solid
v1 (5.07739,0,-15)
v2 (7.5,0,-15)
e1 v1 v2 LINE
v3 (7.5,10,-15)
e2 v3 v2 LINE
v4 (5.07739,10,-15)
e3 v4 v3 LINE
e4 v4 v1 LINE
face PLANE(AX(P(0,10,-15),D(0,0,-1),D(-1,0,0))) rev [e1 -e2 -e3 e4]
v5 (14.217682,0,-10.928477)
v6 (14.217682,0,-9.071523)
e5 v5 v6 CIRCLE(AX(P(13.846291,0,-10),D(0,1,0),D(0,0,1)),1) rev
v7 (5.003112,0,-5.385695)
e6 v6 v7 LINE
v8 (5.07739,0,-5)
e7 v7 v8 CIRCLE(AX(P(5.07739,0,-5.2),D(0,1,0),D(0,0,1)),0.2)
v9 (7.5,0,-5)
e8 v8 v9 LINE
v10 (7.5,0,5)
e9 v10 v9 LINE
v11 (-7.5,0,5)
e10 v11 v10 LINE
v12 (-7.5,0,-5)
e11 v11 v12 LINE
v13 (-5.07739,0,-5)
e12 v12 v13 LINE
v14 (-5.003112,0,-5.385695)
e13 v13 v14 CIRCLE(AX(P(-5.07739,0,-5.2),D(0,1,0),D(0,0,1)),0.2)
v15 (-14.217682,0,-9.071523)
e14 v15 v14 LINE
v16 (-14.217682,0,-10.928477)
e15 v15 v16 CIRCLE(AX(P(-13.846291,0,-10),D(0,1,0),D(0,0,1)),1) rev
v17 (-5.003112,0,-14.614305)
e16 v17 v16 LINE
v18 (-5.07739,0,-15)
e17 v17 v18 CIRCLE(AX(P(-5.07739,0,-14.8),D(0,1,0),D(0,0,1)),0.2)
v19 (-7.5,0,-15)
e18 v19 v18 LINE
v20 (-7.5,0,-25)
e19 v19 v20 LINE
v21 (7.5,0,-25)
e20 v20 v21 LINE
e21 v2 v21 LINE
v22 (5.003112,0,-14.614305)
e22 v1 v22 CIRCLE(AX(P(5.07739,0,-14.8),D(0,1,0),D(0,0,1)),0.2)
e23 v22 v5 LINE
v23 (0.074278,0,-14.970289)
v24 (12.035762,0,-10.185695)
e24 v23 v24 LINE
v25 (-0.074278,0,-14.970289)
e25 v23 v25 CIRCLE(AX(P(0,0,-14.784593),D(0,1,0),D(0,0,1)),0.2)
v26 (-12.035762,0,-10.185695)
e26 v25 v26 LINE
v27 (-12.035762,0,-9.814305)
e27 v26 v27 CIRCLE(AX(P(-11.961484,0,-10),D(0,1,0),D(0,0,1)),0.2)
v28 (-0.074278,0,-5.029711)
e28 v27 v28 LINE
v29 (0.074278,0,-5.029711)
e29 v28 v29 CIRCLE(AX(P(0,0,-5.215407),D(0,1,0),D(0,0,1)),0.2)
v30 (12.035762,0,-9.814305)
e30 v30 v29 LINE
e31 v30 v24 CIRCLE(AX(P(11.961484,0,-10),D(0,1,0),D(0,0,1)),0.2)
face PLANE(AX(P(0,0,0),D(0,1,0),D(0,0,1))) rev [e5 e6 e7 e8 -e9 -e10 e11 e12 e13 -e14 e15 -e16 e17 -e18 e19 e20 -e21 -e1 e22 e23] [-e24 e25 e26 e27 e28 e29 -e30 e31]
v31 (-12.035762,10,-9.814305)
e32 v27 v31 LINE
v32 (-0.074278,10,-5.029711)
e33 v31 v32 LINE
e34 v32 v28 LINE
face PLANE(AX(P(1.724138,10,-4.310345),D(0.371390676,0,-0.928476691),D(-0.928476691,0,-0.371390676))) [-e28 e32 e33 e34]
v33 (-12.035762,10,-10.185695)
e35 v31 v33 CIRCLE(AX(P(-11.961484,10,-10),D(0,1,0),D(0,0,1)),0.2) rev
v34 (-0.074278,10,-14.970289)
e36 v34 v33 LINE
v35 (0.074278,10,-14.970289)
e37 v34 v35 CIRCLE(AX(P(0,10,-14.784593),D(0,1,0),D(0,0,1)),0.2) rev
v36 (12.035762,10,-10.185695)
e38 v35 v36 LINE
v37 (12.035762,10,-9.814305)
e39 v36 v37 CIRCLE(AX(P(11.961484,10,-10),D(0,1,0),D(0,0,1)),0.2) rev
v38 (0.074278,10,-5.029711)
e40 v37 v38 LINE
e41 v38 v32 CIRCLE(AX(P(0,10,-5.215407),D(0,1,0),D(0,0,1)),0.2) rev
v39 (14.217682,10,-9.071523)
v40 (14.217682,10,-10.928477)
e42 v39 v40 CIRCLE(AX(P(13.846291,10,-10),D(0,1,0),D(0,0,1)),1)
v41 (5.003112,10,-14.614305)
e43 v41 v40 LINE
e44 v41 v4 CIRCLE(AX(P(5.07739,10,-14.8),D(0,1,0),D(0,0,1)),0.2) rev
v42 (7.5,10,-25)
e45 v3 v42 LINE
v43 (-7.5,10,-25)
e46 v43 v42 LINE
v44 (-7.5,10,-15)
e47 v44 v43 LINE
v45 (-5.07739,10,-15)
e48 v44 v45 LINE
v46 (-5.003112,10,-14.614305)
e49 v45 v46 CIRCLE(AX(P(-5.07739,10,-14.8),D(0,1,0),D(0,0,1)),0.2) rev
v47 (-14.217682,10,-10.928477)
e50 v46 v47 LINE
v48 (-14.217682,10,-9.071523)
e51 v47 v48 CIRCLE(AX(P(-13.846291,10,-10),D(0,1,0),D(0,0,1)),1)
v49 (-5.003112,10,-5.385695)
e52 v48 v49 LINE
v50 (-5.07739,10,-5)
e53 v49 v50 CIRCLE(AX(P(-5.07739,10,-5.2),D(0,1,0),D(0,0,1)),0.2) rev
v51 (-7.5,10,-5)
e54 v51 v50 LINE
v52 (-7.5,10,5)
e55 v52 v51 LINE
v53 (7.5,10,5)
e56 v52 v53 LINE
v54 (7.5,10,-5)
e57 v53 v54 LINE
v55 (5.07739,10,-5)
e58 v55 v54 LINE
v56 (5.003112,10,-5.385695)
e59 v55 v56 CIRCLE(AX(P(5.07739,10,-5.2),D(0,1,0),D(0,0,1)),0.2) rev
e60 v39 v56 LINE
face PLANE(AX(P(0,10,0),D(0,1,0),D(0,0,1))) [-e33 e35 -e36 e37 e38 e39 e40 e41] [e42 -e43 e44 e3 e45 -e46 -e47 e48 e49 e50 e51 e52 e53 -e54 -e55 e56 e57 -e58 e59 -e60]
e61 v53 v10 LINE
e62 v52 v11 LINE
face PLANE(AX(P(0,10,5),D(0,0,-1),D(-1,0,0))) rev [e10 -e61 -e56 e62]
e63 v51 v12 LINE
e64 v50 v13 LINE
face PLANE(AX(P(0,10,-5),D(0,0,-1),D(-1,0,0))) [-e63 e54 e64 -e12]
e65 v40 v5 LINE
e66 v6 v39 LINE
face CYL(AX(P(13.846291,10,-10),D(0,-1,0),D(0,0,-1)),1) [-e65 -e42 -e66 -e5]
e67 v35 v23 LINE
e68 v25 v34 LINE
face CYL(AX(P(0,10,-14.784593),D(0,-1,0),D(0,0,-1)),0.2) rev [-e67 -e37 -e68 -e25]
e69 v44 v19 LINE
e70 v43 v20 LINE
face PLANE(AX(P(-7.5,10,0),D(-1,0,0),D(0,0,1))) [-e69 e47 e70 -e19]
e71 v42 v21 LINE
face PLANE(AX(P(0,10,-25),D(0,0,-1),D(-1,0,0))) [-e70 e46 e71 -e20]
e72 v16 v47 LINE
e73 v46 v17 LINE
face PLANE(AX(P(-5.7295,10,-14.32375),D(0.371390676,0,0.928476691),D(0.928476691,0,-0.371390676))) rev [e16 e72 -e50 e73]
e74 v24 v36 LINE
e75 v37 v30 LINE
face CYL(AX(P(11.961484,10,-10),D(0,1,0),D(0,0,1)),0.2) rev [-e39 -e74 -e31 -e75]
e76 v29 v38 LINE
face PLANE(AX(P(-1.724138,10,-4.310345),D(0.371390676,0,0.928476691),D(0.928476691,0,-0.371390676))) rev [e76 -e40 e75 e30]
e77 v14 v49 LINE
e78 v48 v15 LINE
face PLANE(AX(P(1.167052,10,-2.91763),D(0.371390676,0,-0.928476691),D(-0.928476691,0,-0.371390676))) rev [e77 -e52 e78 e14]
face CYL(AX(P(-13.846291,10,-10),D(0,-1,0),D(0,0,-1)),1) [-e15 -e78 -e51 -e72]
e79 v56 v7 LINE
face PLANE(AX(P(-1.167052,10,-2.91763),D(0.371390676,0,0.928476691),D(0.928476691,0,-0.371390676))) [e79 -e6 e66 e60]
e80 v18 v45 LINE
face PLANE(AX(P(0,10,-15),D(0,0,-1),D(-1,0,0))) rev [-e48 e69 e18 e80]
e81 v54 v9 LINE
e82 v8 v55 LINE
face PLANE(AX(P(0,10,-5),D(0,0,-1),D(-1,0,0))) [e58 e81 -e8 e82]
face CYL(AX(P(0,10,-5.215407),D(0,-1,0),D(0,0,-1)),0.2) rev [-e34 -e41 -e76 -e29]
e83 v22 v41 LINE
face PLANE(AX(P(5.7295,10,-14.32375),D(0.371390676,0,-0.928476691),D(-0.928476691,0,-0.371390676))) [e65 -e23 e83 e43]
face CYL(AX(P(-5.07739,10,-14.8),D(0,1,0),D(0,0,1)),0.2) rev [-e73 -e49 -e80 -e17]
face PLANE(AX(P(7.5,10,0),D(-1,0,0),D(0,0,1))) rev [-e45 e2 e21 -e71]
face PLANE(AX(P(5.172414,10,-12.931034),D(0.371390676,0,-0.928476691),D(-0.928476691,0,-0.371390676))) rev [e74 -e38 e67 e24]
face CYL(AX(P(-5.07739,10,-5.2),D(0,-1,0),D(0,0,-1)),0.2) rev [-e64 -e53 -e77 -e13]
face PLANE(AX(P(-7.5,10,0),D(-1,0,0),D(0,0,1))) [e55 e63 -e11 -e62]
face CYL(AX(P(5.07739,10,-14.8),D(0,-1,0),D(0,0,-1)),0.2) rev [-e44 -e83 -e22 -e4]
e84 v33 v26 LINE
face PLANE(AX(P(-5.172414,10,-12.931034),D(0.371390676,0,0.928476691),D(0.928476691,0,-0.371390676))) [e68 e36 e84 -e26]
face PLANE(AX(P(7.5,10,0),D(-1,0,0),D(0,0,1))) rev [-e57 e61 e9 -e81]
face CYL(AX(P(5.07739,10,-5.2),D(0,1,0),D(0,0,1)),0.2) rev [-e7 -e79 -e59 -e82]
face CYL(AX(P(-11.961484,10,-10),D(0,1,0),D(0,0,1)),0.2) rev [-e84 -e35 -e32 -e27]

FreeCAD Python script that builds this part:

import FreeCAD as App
import Part
import Sketcher
Q = App.Units.Quantity


def edges_at(feature, points):
    """Names of the edges that pass closest to the given points."""
    edges = feature.Shape.Edges
    near = lambda p: min(range(len(edges)), key=lambda i: edges[i].distToShape(Part.Vertex(*p))[0])
    return sorted({f"Edge{near(p) + 1}" for p in points})

doc = App.newDocument("Part")
body = doc.addObject("PartDesign::Body", "Body")

# Sketch on XZ plane
sketch1 = body.newObject("Sketcher::SketchObject", "Sketch")
sketch1.AttachmentSupport = (doc.getObject("XZ_Plane"), [""])
sketch1.MapMode = "FlatFace"
sketch1.addGeometry(Part.LineSegment(App.Vector(-8, -25, 0), App.Vector(-8, -15, 0)), False)
sketch1.addGeometry(Part.LineSegment(App.Vector(-8, -15, 0), App.Vector(8, -15, 0)), False)
sketch1.addGeometry(Part.LineSegment(App.Vector(8, -15, 0), App.Vector(8, -25, 0)), False)
sketch1.addGeometry(Part.LineSegment(App.Vector(8, -25, 0), App.Vector(-8, -25, 0)), False)
sketch1.addConstraint(Sketcher.Constraint("Coincident", 0, 2, 1, 1))
sketch1.addConstraint(Sketcher.Constraint("Coincident", 1, 2, 2, 1))
sketch1.addConstraint(Sketcher.Constraint("Coincident", 2, 2, 3, 1))
sketch1.addConstraint(Sketcher.Constraint("Coincident", 3, 2, 0, 1))
sketch1.addConstraint(Sketcher.Constraint("Vertical", 0))
sketch1.addConstraint(Sketcher.Constraint("Horizontal", 1))
sketch1.addConstraint(Sketcher.Constraint("Vertical", 2))
sketch1.addConstraint(Sketcher.Constraint("Horizontal", 3))
sketch1.addConstraint(Sketcher.Constraint("DistanceX", 1, 1, 1, 2, Q("15 mm")))
sketch1.addConstraint(Sketcher.Constraint("DistanceY", 0, 1, 0, 2, Q("10 mm")))
sketch1.addConstraint(Sketcher.Constraint("DistanceY", 0, 2, -1, 1, Q("15 mm")))
sketch1.addConstraint(Sketcher.Constraint("DistanceX", 0, 2, -1, 1, Q("7.5 mm")))
pad1 = body.newObject("PartDesign::Pad", "Pad")
pad1.Profile = sketch1
pad1.Length = 10
pad1.Reversed = True
body2 = doc.addObject("PartDesign::Body", "Body001")

# Sketch on XZ plane
sketch2 = body2.newObject("Sketcher::SketchObject", "Sketch001")
sketch2.AttachmentSupport = (doc.getObject("XZ_Plane001"), [""])
sketch2.MapMode = "FlatFace"
sketch2.addGeometry(Part.LineSegment(App.Vector(-8, -5, 0), App.Vector(-8, 5, 0)), False)
sketch2.addGeometry(Part.LineSegment(App.Vector(-8, 5, 0), App.Vector(8, 5, 0)), False)
sketch2.addGeometry(Part.LineSegment(App.Vector(8, 5, 0), App.Vector(8, -5, 0)), False)
sketch2.addGeometry(Part.LineSegment(App.Vector(8, -5, 0), App.Vector(-8, -5, 0)), False)
sketch2.addConstraint(Sketcher.Constraint("Coincident", 0, 2, 1, 1))
sketch2.addConstraint(Sketcher.Constraint("Coincident", 1, 2, 2, 1))
sketch2.addConstraint(Sketcher.Constraint("Coincident", 2, 2, 3, 1))
sketch2.addConstraint(Sketcher.Constraint("Coincident", 3, 2, 0, 1))
sketch2.addConstraint(Sketcher.Constraint("Vertical", 0))
sketch2.addConstraint(Sketcher.Constraint("Horizontal", 1))
sketch2.addConstraint(Sketcher.Constraint("Vertical", 2))
sketch2.addConstraint(Sketcher.Constraint("Horizontal", 3))
sketch2.addConstraint(Sketcher.Constraint("Symmetric", 0, 2, 2, 2, -1, 1))
sketch2.addConstraint(Sketcher.Constraint("DistanceX", 1, 1, 1, 2, Q("15 mm")))
sketch2.addConstraint(Sketcher.Constraint("DistanceY", 0, 1, 0, 2, Q("10 mm")))
pad2 = body2.newObject("PartDesign::Pad", "Pad001")
pad2.Profile = sketch2
pad2.Length = 10
pad2.Reversed = True
body.AllowCompound = True
doc.recompute()

boolean = body.newObject("PartDesign::Boolean", "Boolean")
boolean.Type = "Fuse"
boolean.addObjects([body2])

# Sketch on XZ plane
sketch3 = body.newObject("Sketcher::SketchObject", "Sketch002")
sketch3.AttachmentSupport = (doc.getObject("XZ_Plane"), [""])
sketch3.MapMode = "FlatFace"
sketch3.addGeometry(Part.LineSegment(App.Vector(-12.5, -10, 0), App.Vector(0, -15, 0)), False)
sketch3.addGeometry(Part.LineSegment(App.Vector(0, -15, 0), App.Vector(-4, -15, 0)), False)
sketch3.addGeometry(Part.LineSegment(App.Vector(-4, -15, 0), App.Vector(-16.5, -10, 0)), False)
sketch3.addGeometry(Part.LineSegment(App.Vector(-16.5, -10, 0), App.Vector(-4, -5, 0)), False)
sketch3.addGeometry(Part.LineSegment(App.Vector(-4, -5, 0), App.Vector(0, -5, 0)), False)
sketch3.addGeometry(Part.LineSegment(App.Vector(0, -5, 0), App.Vector(-12.5, -10, 0)), False)
sketch3.addConstraint(Sketcher.Constraint("Coincident", 0, 2, 1, 1))
sketch3.addConstraint(Sketcher.Constraint("Coincident", 1, 2, 2, 1))
sketch3.addConstraint(Sketcher.Constraint("Coincident", 2, 2, 3, 1))
sketch3.addConstraint(Sketcher.Constraint("Coincident", 3, 2, 4, 1))
sketch3.addConstraint(Sketcher.Constraint("Coincident", 4, 2, 5, 1))
sketch3.addConstraint(Sketcher.Constraint("Coincident", 5, 2, 0, 1))
sketch3.addConstraint(Sketcher.Constraint("Horizontal", 1))
sketch3.addConstraint(Sketcher.Constraint("Horizontal", 4))
sketch3.addConstraint(Sketcher.Constraint("PointOnObject", 0, 2, -2))
sketch3.addConstraint(Sketcher.Constraint("PointOnObject", 4, 2, -2))
sketch3.addConstraint(Sketcher.Constraint("Parallel", 0, 2))
sketch3.addConstraint(Sketcher.Constraint("Parallel", 3, 5))
sketch3.addConstraint(Sketcher.Constraint("Horizontal", 2, 2, 5, 2))
sketch3.addConstraint(Sketcher.Constraint("Equal", 2, 3))
sketch3.addConstraint(Sketcher.Constraint("DistanceY", 0, 2, -1, 1, Q("15 mm")))
sketch3.addConstraint(Sketcher.Constraint("DistanceY", 2, 2, -1, 1, Q("10 mm")))
sketch3.addConstraint(Sketcher.Constraint("DistanceX", 5, 2, -1, 1, Q("12.5 mm")))
sketch3.addConstraint(Sketcher.Constraint("DistanceX", 1, 2, 1, 1, Q("4.038874 mm")))
pad3 = body.newObject("PartDesign::Pad", "Pad002")
pad3.Profile = sketch3
pad3.Length = 10
pad3.Reversed = True
doc.recompute()

mirrored = body.newObject("PartDesign::Mirrored", "Mirrored")
mirrored.Originals = [pad3]
mirrored.MirrorPlane = (doc.getObject("YZ_Plane"), [""])
body.Tip = mirrored
doc.recompute()

fillet = body.newObject("PartDesign::Fillet", "Fillet")
fillet.Base = (mirrored, edges_at(mirrored, [
    (-4.039, 5, -15),
    (-4.039, 5, -5),
    (0, 5, -5),
    (-12.5, 5, -10),
    (0, 5, -15),
    (4.039, 5, -15),
    (12.5, 5, -10),
    (4.039, 5, -5),
]))
fillet.Radius = 0.2
doc.recompute()

fillet2 = body.newObject("PartDesign::Fillet", "Fillet001")
fillet2.Base = (fillet, edges_at(fillet, [(-16.539, 5, -10), (16.539, 5, -10)]))
fillet2.Radius = 1

doc.recompute()
